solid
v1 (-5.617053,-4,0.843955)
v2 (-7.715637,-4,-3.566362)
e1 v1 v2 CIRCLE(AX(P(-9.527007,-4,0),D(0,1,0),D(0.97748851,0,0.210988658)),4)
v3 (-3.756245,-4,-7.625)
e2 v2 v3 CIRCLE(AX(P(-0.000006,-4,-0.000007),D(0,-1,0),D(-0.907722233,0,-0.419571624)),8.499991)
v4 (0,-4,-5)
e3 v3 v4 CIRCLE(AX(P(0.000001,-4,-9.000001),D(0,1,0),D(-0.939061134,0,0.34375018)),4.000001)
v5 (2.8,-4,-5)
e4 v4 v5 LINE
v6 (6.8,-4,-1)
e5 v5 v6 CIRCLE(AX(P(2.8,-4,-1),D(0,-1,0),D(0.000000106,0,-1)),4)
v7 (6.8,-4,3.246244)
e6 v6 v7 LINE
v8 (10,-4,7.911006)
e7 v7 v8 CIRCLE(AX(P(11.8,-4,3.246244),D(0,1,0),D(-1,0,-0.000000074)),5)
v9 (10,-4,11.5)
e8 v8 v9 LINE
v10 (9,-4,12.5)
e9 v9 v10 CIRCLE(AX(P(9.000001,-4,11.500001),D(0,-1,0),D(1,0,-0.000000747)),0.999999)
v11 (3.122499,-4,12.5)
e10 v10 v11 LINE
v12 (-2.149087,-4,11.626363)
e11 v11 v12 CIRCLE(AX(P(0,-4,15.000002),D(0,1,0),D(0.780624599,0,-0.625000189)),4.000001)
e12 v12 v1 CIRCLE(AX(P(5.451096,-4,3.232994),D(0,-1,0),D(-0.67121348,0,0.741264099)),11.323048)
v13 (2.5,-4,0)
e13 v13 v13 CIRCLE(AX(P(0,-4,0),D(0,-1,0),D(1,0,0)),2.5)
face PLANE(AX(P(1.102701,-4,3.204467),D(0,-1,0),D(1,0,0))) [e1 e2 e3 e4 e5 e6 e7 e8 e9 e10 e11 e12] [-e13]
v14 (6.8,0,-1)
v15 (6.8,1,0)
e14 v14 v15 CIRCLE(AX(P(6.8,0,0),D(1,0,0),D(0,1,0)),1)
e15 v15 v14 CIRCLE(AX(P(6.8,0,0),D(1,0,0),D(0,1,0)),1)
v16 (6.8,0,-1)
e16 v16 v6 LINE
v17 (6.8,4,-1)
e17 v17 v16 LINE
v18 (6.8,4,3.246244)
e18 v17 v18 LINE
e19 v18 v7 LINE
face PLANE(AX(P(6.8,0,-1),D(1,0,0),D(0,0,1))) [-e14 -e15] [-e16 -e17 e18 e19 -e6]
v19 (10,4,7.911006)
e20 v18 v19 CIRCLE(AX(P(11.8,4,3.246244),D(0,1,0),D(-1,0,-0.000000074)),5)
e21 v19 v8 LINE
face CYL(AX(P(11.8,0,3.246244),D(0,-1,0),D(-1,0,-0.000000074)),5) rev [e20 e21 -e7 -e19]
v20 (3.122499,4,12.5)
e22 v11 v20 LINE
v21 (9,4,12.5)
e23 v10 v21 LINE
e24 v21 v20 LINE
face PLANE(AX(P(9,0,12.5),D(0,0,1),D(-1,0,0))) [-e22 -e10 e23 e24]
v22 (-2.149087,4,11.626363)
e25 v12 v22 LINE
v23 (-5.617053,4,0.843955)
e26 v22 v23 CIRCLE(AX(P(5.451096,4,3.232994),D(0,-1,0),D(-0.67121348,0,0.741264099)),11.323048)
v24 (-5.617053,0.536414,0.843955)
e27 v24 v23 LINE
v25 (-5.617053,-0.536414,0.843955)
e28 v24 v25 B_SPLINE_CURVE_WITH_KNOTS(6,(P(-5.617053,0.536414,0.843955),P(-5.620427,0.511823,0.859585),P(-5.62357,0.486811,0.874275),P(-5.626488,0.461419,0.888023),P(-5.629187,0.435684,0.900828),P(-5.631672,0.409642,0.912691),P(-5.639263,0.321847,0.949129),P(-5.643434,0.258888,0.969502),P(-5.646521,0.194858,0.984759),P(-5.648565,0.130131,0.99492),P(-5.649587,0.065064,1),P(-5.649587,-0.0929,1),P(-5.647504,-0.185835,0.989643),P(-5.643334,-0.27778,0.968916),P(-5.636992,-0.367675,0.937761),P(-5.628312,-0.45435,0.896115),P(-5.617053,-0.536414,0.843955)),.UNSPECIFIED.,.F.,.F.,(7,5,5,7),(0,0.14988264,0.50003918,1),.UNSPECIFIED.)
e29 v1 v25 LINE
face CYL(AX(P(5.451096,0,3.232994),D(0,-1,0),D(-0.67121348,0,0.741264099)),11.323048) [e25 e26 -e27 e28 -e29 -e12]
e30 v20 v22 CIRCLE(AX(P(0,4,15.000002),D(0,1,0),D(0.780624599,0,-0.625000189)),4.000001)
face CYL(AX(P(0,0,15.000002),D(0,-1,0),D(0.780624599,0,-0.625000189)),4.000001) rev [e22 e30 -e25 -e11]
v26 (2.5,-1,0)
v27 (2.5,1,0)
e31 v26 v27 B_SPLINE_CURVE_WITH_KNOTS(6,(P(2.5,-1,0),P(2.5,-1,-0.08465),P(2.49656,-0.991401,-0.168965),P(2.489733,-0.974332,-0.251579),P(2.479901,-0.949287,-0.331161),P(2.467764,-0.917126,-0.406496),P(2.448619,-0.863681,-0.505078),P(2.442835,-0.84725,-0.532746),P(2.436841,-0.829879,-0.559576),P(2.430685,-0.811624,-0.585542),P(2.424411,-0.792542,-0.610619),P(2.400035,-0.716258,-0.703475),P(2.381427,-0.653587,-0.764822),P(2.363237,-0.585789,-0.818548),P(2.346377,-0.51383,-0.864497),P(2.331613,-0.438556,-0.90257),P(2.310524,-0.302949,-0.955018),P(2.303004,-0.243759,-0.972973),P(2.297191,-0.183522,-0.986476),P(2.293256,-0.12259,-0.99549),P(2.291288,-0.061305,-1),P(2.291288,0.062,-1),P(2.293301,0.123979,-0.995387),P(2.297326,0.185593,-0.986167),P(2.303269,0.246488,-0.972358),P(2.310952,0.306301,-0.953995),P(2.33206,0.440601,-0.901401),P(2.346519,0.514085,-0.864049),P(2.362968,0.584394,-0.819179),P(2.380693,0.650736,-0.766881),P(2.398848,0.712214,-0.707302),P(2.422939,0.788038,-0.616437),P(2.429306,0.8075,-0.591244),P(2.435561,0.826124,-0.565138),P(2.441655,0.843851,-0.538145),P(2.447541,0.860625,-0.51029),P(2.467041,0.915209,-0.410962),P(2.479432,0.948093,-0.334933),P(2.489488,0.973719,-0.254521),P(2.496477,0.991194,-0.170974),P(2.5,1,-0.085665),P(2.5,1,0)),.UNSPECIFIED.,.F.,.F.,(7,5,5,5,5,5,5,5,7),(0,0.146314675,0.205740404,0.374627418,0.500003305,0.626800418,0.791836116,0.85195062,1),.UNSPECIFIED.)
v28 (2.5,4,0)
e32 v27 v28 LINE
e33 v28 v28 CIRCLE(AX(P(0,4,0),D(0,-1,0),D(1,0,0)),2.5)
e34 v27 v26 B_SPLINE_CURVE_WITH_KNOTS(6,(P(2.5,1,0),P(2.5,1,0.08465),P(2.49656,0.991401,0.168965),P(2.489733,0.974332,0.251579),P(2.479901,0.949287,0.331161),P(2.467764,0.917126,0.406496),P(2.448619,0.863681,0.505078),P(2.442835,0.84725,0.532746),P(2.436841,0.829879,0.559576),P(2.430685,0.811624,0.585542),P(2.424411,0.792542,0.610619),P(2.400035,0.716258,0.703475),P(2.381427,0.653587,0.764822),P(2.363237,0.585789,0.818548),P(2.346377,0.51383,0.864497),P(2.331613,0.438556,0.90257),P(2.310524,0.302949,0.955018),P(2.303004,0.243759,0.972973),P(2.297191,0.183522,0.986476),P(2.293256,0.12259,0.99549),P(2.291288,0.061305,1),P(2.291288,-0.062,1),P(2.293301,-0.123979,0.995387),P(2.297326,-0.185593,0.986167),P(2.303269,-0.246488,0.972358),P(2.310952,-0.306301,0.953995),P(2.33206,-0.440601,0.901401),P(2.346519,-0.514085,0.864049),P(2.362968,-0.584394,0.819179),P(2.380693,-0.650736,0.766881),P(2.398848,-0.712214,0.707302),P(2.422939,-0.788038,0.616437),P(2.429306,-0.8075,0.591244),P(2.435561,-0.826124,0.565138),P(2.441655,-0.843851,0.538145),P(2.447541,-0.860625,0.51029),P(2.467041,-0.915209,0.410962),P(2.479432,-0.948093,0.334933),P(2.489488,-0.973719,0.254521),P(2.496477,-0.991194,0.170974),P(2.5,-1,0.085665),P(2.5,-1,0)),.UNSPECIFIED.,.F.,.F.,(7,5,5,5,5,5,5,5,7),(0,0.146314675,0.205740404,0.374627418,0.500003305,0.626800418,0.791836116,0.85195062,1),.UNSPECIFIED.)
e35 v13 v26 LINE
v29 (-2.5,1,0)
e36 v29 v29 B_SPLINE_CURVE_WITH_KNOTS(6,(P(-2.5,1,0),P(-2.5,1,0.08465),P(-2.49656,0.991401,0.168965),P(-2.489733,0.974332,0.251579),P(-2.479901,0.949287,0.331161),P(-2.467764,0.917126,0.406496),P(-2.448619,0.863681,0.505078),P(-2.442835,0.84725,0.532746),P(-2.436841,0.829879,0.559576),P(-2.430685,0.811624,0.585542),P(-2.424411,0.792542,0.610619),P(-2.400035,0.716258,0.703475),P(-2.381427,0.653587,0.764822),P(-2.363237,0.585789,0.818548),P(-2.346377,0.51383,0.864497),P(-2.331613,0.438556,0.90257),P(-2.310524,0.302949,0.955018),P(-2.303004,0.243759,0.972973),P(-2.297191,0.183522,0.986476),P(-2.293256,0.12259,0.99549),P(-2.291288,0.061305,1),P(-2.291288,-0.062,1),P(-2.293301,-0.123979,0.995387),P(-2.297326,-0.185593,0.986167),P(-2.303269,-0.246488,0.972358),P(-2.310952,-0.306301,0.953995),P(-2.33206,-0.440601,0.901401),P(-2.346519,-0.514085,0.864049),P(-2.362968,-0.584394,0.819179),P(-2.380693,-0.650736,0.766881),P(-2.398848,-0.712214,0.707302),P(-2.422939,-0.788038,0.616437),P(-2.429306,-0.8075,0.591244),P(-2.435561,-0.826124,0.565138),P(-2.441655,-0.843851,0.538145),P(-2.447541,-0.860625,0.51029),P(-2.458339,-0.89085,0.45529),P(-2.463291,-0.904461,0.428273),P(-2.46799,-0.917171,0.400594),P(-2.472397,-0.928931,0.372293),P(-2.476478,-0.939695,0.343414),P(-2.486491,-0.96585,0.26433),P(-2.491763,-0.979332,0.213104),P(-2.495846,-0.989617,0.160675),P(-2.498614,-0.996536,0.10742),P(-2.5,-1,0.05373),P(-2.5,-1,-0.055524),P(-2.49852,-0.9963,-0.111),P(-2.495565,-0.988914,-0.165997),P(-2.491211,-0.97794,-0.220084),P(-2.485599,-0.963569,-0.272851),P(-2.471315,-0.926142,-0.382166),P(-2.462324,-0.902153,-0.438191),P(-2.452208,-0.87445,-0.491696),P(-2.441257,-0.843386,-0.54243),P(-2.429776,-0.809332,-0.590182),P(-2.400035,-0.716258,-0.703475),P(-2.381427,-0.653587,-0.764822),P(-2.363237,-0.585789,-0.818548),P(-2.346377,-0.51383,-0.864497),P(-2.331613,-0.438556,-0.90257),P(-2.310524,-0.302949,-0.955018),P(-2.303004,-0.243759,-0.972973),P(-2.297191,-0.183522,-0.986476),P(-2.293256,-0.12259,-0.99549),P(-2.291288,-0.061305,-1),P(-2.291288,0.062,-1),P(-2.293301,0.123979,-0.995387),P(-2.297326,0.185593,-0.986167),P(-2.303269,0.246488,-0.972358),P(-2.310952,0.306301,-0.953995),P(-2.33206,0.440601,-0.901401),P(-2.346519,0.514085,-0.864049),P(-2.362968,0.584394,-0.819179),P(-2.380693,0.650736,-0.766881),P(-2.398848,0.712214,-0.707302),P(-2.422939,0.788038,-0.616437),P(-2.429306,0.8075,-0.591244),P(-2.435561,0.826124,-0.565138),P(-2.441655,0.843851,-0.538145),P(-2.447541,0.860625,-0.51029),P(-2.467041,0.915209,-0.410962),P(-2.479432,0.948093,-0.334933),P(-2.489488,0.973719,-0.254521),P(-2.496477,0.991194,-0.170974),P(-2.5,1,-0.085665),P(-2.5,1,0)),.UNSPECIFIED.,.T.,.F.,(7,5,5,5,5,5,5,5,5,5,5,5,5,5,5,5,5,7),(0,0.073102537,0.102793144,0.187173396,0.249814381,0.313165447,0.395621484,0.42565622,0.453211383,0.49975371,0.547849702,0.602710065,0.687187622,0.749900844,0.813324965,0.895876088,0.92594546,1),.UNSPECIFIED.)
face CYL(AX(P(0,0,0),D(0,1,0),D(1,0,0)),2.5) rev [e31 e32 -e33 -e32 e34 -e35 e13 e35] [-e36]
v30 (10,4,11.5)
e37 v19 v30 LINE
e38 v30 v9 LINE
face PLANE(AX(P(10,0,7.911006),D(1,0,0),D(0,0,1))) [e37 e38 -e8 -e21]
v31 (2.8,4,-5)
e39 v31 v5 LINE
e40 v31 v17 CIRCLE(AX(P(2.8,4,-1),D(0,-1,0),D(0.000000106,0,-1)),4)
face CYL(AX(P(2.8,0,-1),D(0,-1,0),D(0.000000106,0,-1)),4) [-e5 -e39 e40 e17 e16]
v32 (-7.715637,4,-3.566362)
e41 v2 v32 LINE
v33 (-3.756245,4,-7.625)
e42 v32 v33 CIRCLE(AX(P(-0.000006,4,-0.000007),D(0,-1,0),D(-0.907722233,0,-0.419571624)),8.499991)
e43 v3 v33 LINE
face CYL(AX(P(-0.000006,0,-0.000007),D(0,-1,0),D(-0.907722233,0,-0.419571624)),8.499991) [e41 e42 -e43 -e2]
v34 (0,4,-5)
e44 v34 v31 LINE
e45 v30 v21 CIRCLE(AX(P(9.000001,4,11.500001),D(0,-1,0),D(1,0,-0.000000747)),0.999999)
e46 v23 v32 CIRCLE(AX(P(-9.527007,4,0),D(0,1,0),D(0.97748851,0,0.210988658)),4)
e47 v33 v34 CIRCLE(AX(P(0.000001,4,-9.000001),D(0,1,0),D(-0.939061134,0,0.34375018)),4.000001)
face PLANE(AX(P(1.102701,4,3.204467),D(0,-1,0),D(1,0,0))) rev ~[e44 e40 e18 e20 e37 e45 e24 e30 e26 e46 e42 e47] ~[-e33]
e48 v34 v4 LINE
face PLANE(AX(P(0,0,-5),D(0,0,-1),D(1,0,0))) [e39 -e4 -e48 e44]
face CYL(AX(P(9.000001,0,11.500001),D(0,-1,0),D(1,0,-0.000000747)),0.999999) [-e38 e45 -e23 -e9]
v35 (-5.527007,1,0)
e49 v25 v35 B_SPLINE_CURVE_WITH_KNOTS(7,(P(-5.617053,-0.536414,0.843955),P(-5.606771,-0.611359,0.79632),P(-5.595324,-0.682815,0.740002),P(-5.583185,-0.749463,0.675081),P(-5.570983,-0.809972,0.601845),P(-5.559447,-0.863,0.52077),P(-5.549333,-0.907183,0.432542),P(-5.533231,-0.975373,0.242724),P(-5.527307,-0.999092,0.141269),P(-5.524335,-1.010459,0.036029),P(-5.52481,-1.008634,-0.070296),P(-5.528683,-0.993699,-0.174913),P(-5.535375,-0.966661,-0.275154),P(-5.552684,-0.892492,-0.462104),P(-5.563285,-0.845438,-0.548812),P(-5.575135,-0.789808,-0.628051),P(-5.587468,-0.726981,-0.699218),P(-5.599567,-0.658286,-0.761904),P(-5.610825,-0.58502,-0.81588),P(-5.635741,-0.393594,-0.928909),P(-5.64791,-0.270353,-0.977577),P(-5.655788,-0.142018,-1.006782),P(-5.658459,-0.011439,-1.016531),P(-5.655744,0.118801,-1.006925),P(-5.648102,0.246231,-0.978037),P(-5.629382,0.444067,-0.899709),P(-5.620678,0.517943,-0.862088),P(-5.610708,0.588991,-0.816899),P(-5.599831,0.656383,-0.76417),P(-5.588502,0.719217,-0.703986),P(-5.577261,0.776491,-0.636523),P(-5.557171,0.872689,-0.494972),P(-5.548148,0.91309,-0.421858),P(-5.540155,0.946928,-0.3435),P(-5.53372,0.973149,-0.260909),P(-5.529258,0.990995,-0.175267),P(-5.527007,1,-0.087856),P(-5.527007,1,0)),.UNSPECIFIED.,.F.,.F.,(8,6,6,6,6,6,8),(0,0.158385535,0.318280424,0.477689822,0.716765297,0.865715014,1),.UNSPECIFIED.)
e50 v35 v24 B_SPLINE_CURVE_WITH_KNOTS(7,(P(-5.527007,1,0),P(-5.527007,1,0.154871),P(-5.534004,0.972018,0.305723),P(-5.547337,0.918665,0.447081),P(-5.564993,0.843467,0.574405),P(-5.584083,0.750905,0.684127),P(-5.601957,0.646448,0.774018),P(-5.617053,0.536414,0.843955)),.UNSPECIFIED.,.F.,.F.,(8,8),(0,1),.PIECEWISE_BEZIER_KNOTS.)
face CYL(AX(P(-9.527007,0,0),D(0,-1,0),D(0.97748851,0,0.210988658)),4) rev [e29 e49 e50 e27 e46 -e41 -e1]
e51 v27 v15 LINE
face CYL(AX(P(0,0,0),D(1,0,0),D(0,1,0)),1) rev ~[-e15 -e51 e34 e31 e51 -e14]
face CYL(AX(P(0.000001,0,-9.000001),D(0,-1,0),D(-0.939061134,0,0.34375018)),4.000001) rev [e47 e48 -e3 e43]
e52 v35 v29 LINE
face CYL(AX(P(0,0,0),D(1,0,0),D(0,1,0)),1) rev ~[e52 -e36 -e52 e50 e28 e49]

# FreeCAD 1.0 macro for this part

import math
import FreeCAD as App
import Part
import Sketcher
Q = App.Units.Quantity

doc = App.newDocument("Part")
body = doc.addObject("PartDesign::Body", "Body")

# Sketch on XZ plane
sketch1 = body.newObject("Sketcher::SketchObject", "Sketch")
sketch1.AttachmentSupport = (doc.getObject("XZ_Plane"), [""])
sketch1.MapMode = "FlatFace"
sketch1.addGeometry(Part.ArcOfCircle(Part.Circle(App.Vector(0.000001, -9.000001, 0), App.Vector(0, 0, 1), 4.000001), math.radians(90.000008), math.radians(159.894479)), False)
sketch1.addGeometry(Part.LineSegment(App.Vector(0, -5, 0), App.Vector(2.8, -5, 0)), False)
sketch1.addGeometry(Part.ArcOfCircle(Part.Circle(App.Vector(2.8, -1, 0), App.Vector(0, 0, 1), 4), math.radians(-89.999994), math.radians(-0.000006)), False)
sketch1.addGeometry(Part.LineSegment(App.Vector(6.8, -1, 0), App.Vector(6.8, 3.246244, 0)), False)
sketch1.addGeometry(Part.ArcOfCircle(Part.Circle(App.Vector(11.8, 3.246244, 0), App.Vector(0, 0, 1), 5), math.radians(111.100197), math.radians(180.000004)), False)
sketch1.addGeometry(Part.LineSegment(App.Vector(10, 7.911006, 0), App.Vector(10, 11.5, 0)), False)
sketch1.addGeometry(Part.ArcOfCircle(Part.Circle(App.Vector(9.000001, 11.500001, 0), App.Vector(0, 0, 1), 0.999999), math.radians(-0.000043), math.radians(90.000043)), False)
sketch1.addGeometry(Part.LineSegment(App.Vector(9, 12.5, 0), App.Vector(3.122499, 12.5, 0)), False)
sketch1.addGeometry(Part.ArcOfCircle(Part.Circle(App.Vector(0, 15.000002, 0), App.Vector(0, 0, 1), 4.000001), math.radians(-122.498089), math.radians(-38.682201)), False)
sketch1.addGeometry(Part.ArcOfCircle(Part.Circle(App.Vector(5.451096, 3.232994, 0), App.Vector(0, 0, 1), 11.323048), math.radians(132.160791), math.radians(192.180318)), False)
sketch1.addGeometry(Part.ArcOfCircle(Part.Circle(App.Vector(-9.527007, 0, 0), App.Vector(0, 0, 1), 4), math.radians(-63.073794), math.radians(12.180296)), False)
sketch1.addGeometry(Part.ArcOfCircle(Part.Circle(App.Vector(-0.000006, -0.000007, 0), App.Vector(0, 0, 1), 8.499991), math.radians(-155.192455), math.radians(-116.22587)), False)
sketch1.addGeometry(Part.Circle(App.Vector(0, 0, 0), App.Vector(0, 0, 1), 2.5), False)
sketch1.addConstraint(Sketcher.Constraint("Tangent", 0, 1, 1, 1))
sketch1.addConstraint(Sketcher.Constraint("Tangent", 1, 2, 2, 1))
sketch1.addConstraint(Sketcher.Constraint("Tangent", 2, 2, 3, 1))
sketch1.addConstraint(Sketcher.Constraint("Tangent", 3, 2, 4, 2))
sketch1.addConstraint(Sketcher.Constraint("Coincident", 4, 1, 5, 1))
sketch1.addConstraint(Sketcher.Constraint("Tangent", 5, 2, 6, 1))
sketch1.addConstraint(Sketcher.Constraint("Tangent", 6, 2, 7, 1))
sketch1.addConstraint(Sketcher.Constraint("Coincident", 7, 2, 8, 2))
sketch1.addConstraint(Sketcher.Constraint("Coincident", 8, 1, 9, 1))
sketch1.addConstraint(Sketcher.Constraint("Tangent", 9, 2, 10, 2))
sketch1.addConstraint(Sketcher.Constraint("Coincident", 10, 1, 11, 1))
sketch1.addConstraint(Sketcher.Constraint("Coincident", 11, 2, 0, 2))
sketch1.addConstraint(Sketcher.Constraint("Horizontal", 1))
sketch1.addConstraint(Sketcher.Constraint("Vertical", 3))
sketch1.addConstraint(Sketcher.Constraint("Vertical", 5))
sketch1.addConstraint(Sketcher.Constraint("Horizontal", 7))
sketch1.addConstraint(Sketcher.Constraint("Coincident", 11, 3, -1, 1))
sketch1.addConstraint(Sketcher.Constraint("Coincident", 12, 3, -1, 1))
sketch1.addConstraint(Sketcher.Constraint("Equal", 0, 2))
sketch1.addConstraint(Sketcher.Constraint("Equal", 2, 8))
sketch1.addConstraint(Sketcher.Constraint("Equal", 8, 10))
sketch1.addConstraint(Sketcher.Constraint("PointOnObject", 0, 3, -2))
sketch1.addConstraint(Sketcher.Constraint("PointOnObject", 8, 3, -2))
sketch1.addConstraint(Sketcher.Constraint("PointOnObject", 10, 3, -1))
sketch1.addConstraint(Sketcher.Constraint("Diameter", 12, Q("5 mm")))
sketch1.addConstraint(Sketcher.Constraint("Radius", 0, Q("4.000001 mm")))
sketch1.addConstraint(Sketcher.Constraint("Radius", 4, Q("5 mm")))
sketch1.addConstraint(Sketcher.Constraint("Radius", 6, Q("0.999999 mm")))
sketch1.addConstraint(Sketcher.Constraint("DistanceX", 1, 1, 1, 2, Q("2.8 mm")))
sketch1.addConstraint(Sketcher.Constraint("DistanceY", 0, 3, -1, 1, Q("9.000001 mm")))
sketch1.addConstraint(Sketcher.Constraint("DistanceX", -1, 1, 6, 3, Q("9.000001 mm")))
sketch1.addConstraint(Sketcher.Constraint("DistanceY", -1, 1, 8, 3, Q("15.000002 mm")))
sketch1.addConstraint(Sketcher.Constraint("DistanceY", -1, 1, 6, 3, Q("11.500001 mm")))
sketch1.addConstraint(Sketcher.Constraint("Radius", 9, Q("11.323048 mm")))
sketch1.addConstraint(Sketcher.Constraint("Radius", 11, Q("8.499991 mm")))
sketch1.addConstraint(Sketcher.Constraint("DistanceY", 11, 3, 9, 3, Q("3.233001 mm")))
sketch1.addConstraint(Sketcher.Constraint("DistanceX", 10, 3, 11, 3, Q("9.527002 mm")))
sketch1.addConstraint(Sketcher.Constraint("DistanceY", 3, 1, 3, 2, Q("4.246244 mm")))
pad1 = body.newObject("PartDesign::Pad", "Pad")
pad1.Profile = sketch1
pad1.Length = 8
pad1.Midplane = True

# Sketch on YZ plane
sketch2 = body.newObject("Sketcher::SketchObject", "Sketch001")
sketch2.AttachmentSupport = (doc.getObject("YZ_Plane"), [""])
sketch2.MapMode = "FlatFace"
sketch2.addGeometry(Part.Circle(App.Vector(0, 0, 0), App.Vector(0, 0, 1), 1), False)
sketch2.addConstraint(Sketcher.Constraint("Coincident", 0, 3, -1, 1))
sketch2.addConstraint(Sketcher.Constraint("Diameter", 0, Q("2 mm")))
pocket1 = body.newObject("PartDesign::Pocket", "Pocket")
pocket1.Profile = sketch2
pocket1.Length = 25
pocket1.Midplane = True

doc.recompute()
